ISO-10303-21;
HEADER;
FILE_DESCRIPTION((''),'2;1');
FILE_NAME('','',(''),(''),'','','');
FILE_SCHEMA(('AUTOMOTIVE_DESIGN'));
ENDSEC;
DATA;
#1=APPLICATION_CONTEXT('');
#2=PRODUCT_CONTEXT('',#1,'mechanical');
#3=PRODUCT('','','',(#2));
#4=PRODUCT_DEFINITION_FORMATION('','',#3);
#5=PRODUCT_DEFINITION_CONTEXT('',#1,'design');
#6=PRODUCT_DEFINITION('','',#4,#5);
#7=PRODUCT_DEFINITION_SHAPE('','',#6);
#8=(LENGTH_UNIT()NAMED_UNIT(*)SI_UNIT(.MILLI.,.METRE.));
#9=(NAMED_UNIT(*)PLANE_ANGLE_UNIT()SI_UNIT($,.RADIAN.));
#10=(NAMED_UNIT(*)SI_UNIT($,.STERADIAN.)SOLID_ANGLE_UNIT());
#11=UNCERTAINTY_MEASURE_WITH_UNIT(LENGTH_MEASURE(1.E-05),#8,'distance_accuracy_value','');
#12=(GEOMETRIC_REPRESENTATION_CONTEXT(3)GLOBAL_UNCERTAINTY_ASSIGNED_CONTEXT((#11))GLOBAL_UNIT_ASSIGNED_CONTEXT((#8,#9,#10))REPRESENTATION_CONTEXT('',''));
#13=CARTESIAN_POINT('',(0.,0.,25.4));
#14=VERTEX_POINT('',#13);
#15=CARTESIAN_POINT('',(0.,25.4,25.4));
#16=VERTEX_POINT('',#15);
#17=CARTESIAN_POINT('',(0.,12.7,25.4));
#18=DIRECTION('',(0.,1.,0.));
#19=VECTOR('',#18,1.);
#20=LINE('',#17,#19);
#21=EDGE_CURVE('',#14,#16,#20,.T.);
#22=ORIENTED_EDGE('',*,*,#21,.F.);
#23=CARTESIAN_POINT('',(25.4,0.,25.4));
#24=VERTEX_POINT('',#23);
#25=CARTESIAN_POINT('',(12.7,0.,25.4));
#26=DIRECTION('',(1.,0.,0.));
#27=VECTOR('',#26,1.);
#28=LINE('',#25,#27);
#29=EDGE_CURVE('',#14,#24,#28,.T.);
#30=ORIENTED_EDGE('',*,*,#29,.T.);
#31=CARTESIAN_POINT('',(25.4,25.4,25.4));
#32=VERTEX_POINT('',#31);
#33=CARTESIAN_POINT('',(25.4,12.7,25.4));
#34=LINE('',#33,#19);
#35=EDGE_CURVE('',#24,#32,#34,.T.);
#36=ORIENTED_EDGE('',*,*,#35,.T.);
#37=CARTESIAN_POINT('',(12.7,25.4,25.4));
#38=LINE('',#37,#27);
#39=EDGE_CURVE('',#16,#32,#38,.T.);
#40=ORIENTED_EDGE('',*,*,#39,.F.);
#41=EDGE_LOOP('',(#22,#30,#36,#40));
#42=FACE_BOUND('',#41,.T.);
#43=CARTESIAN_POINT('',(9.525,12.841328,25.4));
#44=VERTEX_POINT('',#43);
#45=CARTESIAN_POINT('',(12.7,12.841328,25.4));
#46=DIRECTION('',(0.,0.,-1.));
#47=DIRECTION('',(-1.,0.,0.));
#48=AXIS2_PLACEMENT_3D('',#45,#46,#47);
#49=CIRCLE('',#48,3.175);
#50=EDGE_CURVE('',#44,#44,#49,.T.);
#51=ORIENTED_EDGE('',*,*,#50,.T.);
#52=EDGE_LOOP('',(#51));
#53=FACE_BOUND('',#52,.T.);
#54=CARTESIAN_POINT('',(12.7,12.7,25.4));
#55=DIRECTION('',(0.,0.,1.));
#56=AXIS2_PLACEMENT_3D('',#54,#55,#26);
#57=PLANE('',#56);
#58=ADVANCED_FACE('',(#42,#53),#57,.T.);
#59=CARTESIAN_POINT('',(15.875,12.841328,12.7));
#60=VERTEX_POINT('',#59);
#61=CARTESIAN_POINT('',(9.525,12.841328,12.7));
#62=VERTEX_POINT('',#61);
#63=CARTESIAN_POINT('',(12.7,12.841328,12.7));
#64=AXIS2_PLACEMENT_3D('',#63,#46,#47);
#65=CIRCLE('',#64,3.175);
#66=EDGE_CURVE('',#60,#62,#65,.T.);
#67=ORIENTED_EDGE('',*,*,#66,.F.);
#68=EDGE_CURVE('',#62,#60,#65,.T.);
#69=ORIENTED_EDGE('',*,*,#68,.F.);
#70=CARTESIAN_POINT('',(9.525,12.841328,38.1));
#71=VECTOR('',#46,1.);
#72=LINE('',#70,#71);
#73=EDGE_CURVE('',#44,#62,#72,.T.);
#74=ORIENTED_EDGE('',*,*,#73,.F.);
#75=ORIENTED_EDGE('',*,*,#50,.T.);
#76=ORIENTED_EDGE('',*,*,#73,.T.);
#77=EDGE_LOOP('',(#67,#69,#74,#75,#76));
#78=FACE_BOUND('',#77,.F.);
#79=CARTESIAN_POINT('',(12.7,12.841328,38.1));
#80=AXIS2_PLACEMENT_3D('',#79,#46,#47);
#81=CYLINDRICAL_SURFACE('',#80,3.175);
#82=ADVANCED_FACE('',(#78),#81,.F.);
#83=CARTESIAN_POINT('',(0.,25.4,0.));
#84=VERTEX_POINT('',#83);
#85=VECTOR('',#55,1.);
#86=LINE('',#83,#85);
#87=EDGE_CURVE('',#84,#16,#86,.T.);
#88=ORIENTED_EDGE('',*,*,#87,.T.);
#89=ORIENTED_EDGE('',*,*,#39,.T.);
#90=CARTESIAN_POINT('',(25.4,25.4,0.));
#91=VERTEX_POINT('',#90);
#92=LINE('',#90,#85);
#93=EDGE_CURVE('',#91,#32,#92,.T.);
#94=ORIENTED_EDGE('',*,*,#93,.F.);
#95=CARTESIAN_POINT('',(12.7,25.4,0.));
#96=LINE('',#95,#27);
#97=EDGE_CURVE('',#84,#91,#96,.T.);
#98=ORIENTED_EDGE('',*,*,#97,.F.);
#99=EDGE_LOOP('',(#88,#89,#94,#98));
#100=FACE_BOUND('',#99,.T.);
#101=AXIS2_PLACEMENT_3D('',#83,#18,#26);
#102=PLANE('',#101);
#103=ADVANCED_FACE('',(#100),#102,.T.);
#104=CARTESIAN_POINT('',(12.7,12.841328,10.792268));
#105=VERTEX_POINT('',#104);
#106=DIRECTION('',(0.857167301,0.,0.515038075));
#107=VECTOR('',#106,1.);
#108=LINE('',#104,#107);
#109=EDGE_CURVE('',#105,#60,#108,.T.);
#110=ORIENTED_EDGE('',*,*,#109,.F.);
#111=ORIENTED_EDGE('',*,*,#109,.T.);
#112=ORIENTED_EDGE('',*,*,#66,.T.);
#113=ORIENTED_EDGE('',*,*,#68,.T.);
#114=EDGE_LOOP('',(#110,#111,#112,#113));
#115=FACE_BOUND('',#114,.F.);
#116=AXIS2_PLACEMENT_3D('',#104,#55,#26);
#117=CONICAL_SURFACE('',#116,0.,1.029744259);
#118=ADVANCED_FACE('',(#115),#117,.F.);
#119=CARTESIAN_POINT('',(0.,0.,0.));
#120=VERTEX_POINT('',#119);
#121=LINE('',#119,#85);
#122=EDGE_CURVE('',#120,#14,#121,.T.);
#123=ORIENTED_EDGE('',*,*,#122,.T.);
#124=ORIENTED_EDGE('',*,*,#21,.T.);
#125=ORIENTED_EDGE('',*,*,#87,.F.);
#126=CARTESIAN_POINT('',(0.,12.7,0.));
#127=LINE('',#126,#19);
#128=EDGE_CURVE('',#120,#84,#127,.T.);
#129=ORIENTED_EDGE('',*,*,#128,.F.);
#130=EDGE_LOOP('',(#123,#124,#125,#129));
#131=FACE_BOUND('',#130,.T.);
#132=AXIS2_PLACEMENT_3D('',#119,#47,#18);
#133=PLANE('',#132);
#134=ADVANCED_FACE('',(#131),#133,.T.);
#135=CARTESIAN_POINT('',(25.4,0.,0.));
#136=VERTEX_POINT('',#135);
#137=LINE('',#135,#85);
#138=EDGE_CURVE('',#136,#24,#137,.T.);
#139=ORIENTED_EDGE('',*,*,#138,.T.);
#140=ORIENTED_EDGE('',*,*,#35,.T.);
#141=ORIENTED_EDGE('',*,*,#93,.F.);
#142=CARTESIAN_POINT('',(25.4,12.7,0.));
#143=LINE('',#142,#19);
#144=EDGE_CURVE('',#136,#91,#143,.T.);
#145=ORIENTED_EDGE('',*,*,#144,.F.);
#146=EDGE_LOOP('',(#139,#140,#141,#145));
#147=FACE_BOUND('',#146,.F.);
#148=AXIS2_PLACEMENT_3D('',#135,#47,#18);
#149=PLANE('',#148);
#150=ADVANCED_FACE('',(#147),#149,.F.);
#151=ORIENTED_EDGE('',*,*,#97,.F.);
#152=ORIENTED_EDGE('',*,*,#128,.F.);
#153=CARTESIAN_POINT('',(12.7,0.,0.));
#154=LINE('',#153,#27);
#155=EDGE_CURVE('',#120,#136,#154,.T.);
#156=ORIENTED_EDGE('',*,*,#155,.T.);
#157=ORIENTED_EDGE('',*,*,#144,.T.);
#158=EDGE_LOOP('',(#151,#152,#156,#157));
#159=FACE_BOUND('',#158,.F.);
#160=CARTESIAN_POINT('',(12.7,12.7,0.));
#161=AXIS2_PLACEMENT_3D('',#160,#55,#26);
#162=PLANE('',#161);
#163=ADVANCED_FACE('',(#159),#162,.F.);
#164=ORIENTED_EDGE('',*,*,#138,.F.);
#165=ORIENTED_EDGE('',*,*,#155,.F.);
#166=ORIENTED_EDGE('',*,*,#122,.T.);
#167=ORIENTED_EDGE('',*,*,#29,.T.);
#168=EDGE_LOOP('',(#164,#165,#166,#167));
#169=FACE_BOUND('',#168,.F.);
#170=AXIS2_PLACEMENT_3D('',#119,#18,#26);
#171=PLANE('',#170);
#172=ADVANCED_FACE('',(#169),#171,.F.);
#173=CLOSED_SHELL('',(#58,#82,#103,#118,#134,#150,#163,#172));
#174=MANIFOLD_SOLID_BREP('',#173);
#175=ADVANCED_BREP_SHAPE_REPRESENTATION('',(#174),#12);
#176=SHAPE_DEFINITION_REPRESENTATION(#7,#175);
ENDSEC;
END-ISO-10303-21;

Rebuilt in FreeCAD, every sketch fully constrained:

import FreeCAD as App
import Part
import Sketcher
from FreeCAD import Vector
Q = App.Units.Quantity


def add_polygon(sketch, points):
    """Adds a closed chain of lines whose ends are joined by coincident constraints."""
    first, n = sketch.GeometryCount, len(points)
    for a, b in zip(points, points[1:] + points[:1]):
        sketch.addGeometry(Part.LineSegment(App.Vector(*a, 0), App.Vector(*b, 0)), False)
    for i in range(n):
        sketch.addConstraint(Sketcher.Constraint("Coincident", first + i, 2, first + (i + 1) % n, 1))

doc = App.newDocument("Part")
body = doc.addObject("PartDesign::Body", "Body")

sketch1 = doc.addObject("Sketcher::SketchObject", "Sketch")
body.addObject(sketch1)
sketch1.AttachmentSupport = (doc.XY_Plane, [""])
sketch1.MapMode = "FlatFace"
add_polygon(sketch1, [(0, 25.4), (0, 0), (25.4, 0), (25.4, 25.4)])
sketch1.addConstraint(Sketcher.Constraint("Vertical", 0))
sketch1.addConstraint(Sketcher.Constraint("Horizontal", 1))
sketch1.addConstraint(Sketcher.Constraint("Vertical", 2))
sketch1.addConstraint(Sketcher.Constraint("Horizontal", 3))
sketch1.addConstraint(Sketcher.Constraint("Coincident", 0, 2, -1, 1))
sketch1.addConstraint(Sketcher.Constraint("Equal", 3, 0))
sketch1.addConstraint(Sketcher.Constraint("DistanceX", 1, 1, 1, 2, Q("1 in")))
pad1 = doc.addObject("PartDesign::Pad", "Pad")
body.addObject(pad1)
pad1.Profile = sketch1
pad1.Length = Q("1 in")

sketch2 = doc.addObject("Sketcher::SketchObject", "Sketch001")
body.addObject(sketch2)
sketch2.AttachmentSupport = (doc.XY_Plane, [""])
sketch2.MapMode = "FlatFace"
sketch2.AttachmentOffset = App.Placement(Vector(0, 0, 1 * 25.4), App.Rotation())
sketch2.addGeometry(Part.Circle(Vector(12.7, 12.841328, 0), Vector(0, 0, 1), 3.175), False)
sketch2.addConstraint(Sketcher.Constraint("Diameter", 0, Q("0.25 in")))
sketch2.addConstraint(Sketcher.Constraint("DistanceX", -1, 1, 0, 3, Q("0.5 in")))
sketch2.addConstraint(Sketcher.Constraint("DistanceY", -1, 1, 0, 3, 12.841328))
doc.recompute()
hole = doc.addObject("PartDesign::Hole", "Hole")
body.addObject(hole)
hole.Profile = sketch2
hole.ThreadType = "None"
hole.Diameter = Q("0.25 in")
hole.DepthType = "Dimension"
hole.Depth = Q("0.5 in")
hole.DrillPoint = "Angled"
hole.DrillPointAngle = 118

doc.recompute()
